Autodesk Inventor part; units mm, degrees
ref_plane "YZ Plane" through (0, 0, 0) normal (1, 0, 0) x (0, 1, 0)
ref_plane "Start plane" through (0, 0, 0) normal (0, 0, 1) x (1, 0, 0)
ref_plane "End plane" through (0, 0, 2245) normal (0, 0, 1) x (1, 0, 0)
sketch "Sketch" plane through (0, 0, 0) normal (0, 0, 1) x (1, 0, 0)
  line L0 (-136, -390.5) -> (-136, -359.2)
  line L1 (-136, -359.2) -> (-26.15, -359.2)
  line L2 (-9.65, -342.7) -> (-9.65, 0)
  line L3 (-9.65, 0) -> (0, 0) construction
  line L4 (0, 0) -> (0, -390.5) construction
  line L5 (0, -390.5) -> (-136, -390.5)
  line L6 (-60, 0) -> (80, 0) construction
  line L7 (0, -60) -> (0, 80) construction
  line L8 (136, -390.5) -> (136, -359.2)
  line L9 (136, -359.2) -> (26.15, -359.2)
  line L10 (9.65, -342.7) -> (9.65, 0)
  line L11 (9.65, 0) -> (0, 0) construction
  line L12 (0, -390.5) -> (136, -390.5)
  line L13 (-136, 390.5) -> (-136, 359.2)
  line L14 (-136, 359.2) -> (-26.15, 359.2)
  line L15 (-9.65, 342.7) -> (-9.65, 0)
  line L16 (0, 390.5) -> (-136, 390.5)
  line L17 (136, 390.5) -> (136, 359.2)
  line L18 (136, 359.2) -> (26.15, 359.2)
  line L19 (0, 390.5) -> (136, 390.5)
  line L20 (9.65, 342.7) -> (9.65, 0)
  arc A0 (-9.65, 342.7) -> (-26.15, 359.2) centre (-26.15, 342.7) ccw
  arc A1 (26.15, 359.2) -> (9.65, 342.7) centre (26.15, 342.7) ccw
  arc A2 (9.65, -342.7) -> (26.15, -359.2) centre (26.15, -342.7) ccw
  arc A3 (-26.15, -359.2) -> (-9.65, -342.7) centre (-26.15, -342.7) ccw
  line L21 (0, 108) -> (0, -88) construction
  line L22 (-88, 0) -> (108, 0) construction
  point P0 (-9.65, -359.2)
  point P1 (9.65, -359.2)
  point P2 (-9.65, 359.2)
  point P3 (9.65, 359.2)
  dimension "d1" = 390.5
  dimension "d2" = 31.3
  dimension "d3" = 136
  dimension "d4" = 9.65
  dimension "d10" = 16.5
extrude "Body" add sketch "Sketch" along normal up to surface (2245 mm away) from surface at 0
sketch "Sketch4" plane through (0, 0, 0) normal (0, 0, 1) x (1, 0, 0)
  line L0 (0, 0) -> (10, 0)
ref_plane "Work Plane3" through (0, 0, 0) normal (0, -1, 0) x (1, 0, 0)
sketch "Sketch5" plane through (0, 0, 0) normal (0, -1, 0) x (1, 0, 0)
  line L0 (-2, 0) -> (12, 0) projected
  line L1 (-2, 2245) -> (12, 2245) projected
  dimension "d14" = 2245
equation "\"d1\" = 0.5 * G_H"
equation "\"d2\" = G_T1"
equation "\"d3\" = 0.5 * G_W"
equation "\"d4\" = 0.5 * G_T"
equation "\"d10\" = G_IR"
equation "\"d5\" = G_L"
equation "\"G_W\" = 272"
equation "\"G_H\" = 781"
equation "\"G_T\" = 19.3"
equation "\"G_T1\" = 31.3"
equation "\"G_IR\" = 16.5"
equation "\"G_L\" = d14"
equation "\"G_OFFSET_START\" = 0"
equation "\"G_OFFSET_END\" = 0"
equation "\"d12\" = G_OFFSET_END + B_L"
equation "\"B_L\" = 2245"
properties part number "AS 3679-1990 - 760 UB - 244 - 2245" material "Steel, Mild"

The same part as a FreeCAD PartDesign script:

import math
import FreeCAD as App
import Part
import Sketcher

V = App.Vector
Q = App.Units.Quantity

doc = App.newDocument("Part")
body = doc.addObject("PartDesign::Body", "Body")

# Sketch on XY plane
sketch1 = body.newObject("Sketcher::SketchObject", "Sketch")
sketch1.AttachmentSupport = (doc.getObject("XY_Plane"), [""])
sketch1.MapMode = "FlatFace"
sketch1.addGeometry([
    Part.LineSegment(V(-136, -359, 0), V(-136, -390, 0)),  # 0
    Part.LineSegment(V(-136, -390, 0), V(136, -390, 0)),  # 1
    Part.LineSegment(V(136, -390, 0), V(136, -359, 0)),  # 2
    Part.LineSegment(V(136, -359, 0), V(26, -359, 0)),  # 3
    Part.ArcOfCircle(Part.Circle(V(26, -343, 0), V(0, 0, 1), 16), math.radians(180), math.radians(270)),  # 4
    Part.LineSegment(V(10, -343, 0), V(10, 343, 0)),  # 5
    Part.ArcOfCircle(Part.Circle(V(26, 343, 0), V(0, 0, 1), 16), math.radians(90), math.radians(180)),  # 6
    Part.LineSegment(V(26, 359, 0), V(136, 359, 0)),  # 7
    Part.LineSegment(V(136, 359, 0), V(136, 390, 0)),  # 8
    Part.LineSegment(V(136, 390, 0), V(-136, 390, 0)),  # 9
    Part.LineSegment(V(-136, 390, 0), V(-136, 359, 0)),  # 10
    Part.LineSegment(V(-136, 359, 0), V(-26, 359, 0)),  # 11
    Part.ArcOfCircle(Part.Circle(V(-26, 343, 0), V(0, 0, 1), 16), math.radians(0), math.radians(90)),  # 12
    Part.LineSegment(V(-10, 343, 0), V(-10, -343, 0)),  # 13
    Part.ArcOfCircle(Part.Circle(V(-26, -343, 0), V(0, 0, 1), 16), math.radians(-90), math.radians(0)),  # 14
    Part.LineSegment(V(-26, -359, 0), V(-136, -359, 0)),  # 15
], False)
sketch1.addConstraint([
    Sketcher.Constraint("Coincident", 0, 2, 1, 1),
    Sketcher.Constraint("Coincident", 1, 2, 2, 1),
    Sketcher.Constraint("Coincident", 2, 2, 3, 1),
    Sketcher.Constraint("Tangent", 3, 2, 4, 2),
    Sketcher.Constraint("Tangent", 4, 1, 5, 1),
    Sketcher.Constraint("Tangent", 5, 2, 6, 2),
    Sketcher.Constraint("Tangent", 6, 1, 7, 1),
    Sketcher.Constraint("Coincident", 7, 2, 8, 1),
    Sketcher.Constraint("Coincident", 8, 2, 9, 1),
    Sketcher.Constraint("Coincident", 9, 2, 10, 1),
    Sketcher.Constraint("Coincident", 10, 2, 11, 1),
    Sketcher.Constraint("Tangent", 11, 2, 12, 2),
    Sketcher.Constraint("Tangent", 12, 1, 13, 1),
    Sketcher.Constraint("Tangent", 13, 2, 14, 2),
    Sketcher.Constraint("Tangent", 14, 1, 15, 1),
    Sketcher.Constraint("Coincident", 15, 2, 0, 1),
    Sketcher.Constraint("Vertical", 0),
    Sketcher.Constraint("Horizontal", 1),
    Sketcher.Constraint("Vertical", 2),
    Sketcher.Constraint("Horizontal", 3),
    Sketcher.Constraint("Vertical", 5),
    Sketcher.Constraint("Horizontal", 7),
    Sketcher.Constraint("Vertical", 8),
    Sketcher.Constraint("Horizontal", 9),
    Sketcher.Constraint("Vertical", 10),
    Sketcher.Constraint("Horizontal", 11),
    Sketcher.Constraint("Vertical", 13),
    Sketcher.Constraint("Horizontal", 15),
    Sketcher.Constraint("Equal", 4, 6),
    Sketcher.Constraint("Equal", 6, 12),
    Sketcher.Constraint("Equal", 12, 14),
    Sketcher.Constraint("Symmetric", 4, 3, 12, 3, -1, 1),
    Sketcher.Constraint("Symmetric", 0, 2, 8, 2, -1, 1),
    Sketcher.Constraint("Symmetric", 7, 2, 10, 2, -2),
    Sketcher.Constraint("Symmetric", 2, 2, 15, 2, -2),
    Sketcher.Constraint("Radius", 4, Q("16.5 mm")),
    Sketcher.Constraint("DistanceY", 0, 2, 0, 1, Q("31.3 mm")),
    Sketcher.Constraint("DistanceX", 0, 2, -1, 1, Q("136 mm")),
    Sketcher.Constraint("DistanceY", 0, 2, -1, 1, Q("390.5 mm")),
    Sketcher.Constraint("DistanceX", -1, 1, 4, 1, Q("9.65 mm")),
])
pad1 = body.newObject("PartDesign::Pad", "Pad")
pad1.Profile = sketch1
pad1.Length = 2245

doc.recompute()
